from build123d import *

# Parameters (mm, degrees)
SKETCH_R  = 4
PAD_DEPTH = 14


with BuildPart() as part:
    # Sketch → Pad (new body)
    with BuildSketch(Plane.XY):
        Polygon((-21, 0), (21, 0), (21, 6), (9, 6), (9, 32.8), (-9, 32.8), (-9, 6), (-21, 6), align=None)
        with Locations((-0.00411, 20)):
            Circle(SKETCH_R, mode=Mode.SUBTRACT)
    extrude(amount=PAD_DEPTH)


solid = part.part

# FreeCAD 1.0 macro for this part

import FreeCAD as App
import Part
import Sketcher
Q = App.Units.Quantity

doc = App.newDocument("Part")
body = doc.addObject("PartDesign::Body", "Body")

# Sketch on XY plane
sketch1 = body.newObject("Sketcher::SketchObject", "Sketch")
sketch1.AttachmentSupport = (doc.getObject("XY_Plane"), [""])
sketch1.MapMode = "FlatFace"
sketch1.addGeometry(Part.LineSegment(App.Vector(-21, 0, 0), App.Vector(21, 0, 0)), False)
sketch1.addGeometry(Part.LineSegment(App.Vector(21, 0, 0), App.Vector(21, 6, 0)), False)
sketch1.addGeometry(Part.LineSegment(App.Vector(21, 6, 0), App.Vector(9, 6, 0)), False)
sketch1.addGeometry(Part.LineSegment(App.Vector(9, 6, 0), App.Vector(9, 32.8, 0)), False)
sketch1.addGeometry(Part.LineSegment(App.Vector(9, 32.8, 0), App.Vector(-9, 32.8, 0)), False)
sketch1.addGeometry(Part.LineSegment(App.Vector(-9, 32.8, 0), App.Vector(-9, 6, 0)), False)
sketch1.addGeometry(Part.LineSegment(App.Vector(-9, 6, 0), App.Vector(-21, 6, 0)), False)
sketch1.addGeometry(Part.LineSegment(App.Vector(-21, 6, 0), App.Vector(-21, 0, 0)), False)
sketch1.addGeometry(Part.Circle(App.Vector(-0.00411, 20, 0), App.Vector(0, 0, 1), 4), False)
sketch1.addConstraint(Sketcher.Constraint("Coincident", 0, 2, 1, 1))
sketch1.addConstraint(Sketcher.Constraint("Coincident", 1, 2, 2, 1))
sketch1.addConstraint(Sketcher.Constraint("Coincident", 2, 2, 3, 1))
sketch1.addConstraint(Sketcher.Constraint("Coincident", 3, 2, 4, 1))
sketch1.addConstraint(Sketcher.Constraint("Coincident", 4, 2, 5, 1))
sketch1.addConstraint(Sketcher.Constraint("Coincident", 5, 2, 6, 1))
sketch1.addConstraint(Sketcher.Constraint("Coincident", 6, 2, 7, 1))
sketch1.addConstraint(Sketcher.Constraint("Coincident", 7, 2, 0, 1))
sketch1.addConstraint(Sketcher.Constraint("Horizontal", 0))
sketch1.addConstraint(Sketcher.Constraint("Vertical", 1))
sketch1.addConstraint(Sketcher.Constraint("Horizontal", 2))
sketch1.addConstraint(Sketcher.Constraint("Vertical", 3))
sketch1.addConstraint(Sketcher.Constraint("Horizontal", 4))
sketch1.addConstraint(Sketcher.Constraint("Vertical", 5))
sketch1.addConstraint(Sketcher.Constraint("Horizontal", 6))
sketch1.addConstraint(Sketcher.Constraint("Vertical", 7))
sketch1.addConstraint(Sketcher.Constraint("Symmetric", 0, 2, 7, 2, -1, 1))
sketch1.addConstraint(Sketcher.Constraint("Symmetric", 2, 2, 5, 2, -2))
sketch1.addConstraint(Sketcher.Constraint("Diameter", 8, Q("8 mm")))
sketch1.addConstraint(Sketcher.Constraint("DistanceX", 0, 1, 0, 2, Q("42 mm")))
sketch1.addConstraint(Sketcher.Constraint("DistanceX", 2, 2, 2, 1, Q("12 mm")))
sketch1.addConstraint(Sketcher.Constraint("DistanceY", 1, 1, 1, 2, Q("6 mm")))
sketch1.addConstraint(Sketcher.Constraint("DistanceY", 3, 1, 3, 2, Q("26.8 mm")))
sketch1.addConstraint(Sketcher.Constraint("DistanceY", -1, 1, 8, 3, Q("20 mm")))
sketch1.addConstraint(Sketcher.Constraint("DistanceX", 8, 3, -1, 1, Q("0.00411 mm")))
pad1 = body.newObject("PartDesign::Pad", "Pad")
pad1.Profile = sketch1
pad1.Length = 14

doc.recompute()
